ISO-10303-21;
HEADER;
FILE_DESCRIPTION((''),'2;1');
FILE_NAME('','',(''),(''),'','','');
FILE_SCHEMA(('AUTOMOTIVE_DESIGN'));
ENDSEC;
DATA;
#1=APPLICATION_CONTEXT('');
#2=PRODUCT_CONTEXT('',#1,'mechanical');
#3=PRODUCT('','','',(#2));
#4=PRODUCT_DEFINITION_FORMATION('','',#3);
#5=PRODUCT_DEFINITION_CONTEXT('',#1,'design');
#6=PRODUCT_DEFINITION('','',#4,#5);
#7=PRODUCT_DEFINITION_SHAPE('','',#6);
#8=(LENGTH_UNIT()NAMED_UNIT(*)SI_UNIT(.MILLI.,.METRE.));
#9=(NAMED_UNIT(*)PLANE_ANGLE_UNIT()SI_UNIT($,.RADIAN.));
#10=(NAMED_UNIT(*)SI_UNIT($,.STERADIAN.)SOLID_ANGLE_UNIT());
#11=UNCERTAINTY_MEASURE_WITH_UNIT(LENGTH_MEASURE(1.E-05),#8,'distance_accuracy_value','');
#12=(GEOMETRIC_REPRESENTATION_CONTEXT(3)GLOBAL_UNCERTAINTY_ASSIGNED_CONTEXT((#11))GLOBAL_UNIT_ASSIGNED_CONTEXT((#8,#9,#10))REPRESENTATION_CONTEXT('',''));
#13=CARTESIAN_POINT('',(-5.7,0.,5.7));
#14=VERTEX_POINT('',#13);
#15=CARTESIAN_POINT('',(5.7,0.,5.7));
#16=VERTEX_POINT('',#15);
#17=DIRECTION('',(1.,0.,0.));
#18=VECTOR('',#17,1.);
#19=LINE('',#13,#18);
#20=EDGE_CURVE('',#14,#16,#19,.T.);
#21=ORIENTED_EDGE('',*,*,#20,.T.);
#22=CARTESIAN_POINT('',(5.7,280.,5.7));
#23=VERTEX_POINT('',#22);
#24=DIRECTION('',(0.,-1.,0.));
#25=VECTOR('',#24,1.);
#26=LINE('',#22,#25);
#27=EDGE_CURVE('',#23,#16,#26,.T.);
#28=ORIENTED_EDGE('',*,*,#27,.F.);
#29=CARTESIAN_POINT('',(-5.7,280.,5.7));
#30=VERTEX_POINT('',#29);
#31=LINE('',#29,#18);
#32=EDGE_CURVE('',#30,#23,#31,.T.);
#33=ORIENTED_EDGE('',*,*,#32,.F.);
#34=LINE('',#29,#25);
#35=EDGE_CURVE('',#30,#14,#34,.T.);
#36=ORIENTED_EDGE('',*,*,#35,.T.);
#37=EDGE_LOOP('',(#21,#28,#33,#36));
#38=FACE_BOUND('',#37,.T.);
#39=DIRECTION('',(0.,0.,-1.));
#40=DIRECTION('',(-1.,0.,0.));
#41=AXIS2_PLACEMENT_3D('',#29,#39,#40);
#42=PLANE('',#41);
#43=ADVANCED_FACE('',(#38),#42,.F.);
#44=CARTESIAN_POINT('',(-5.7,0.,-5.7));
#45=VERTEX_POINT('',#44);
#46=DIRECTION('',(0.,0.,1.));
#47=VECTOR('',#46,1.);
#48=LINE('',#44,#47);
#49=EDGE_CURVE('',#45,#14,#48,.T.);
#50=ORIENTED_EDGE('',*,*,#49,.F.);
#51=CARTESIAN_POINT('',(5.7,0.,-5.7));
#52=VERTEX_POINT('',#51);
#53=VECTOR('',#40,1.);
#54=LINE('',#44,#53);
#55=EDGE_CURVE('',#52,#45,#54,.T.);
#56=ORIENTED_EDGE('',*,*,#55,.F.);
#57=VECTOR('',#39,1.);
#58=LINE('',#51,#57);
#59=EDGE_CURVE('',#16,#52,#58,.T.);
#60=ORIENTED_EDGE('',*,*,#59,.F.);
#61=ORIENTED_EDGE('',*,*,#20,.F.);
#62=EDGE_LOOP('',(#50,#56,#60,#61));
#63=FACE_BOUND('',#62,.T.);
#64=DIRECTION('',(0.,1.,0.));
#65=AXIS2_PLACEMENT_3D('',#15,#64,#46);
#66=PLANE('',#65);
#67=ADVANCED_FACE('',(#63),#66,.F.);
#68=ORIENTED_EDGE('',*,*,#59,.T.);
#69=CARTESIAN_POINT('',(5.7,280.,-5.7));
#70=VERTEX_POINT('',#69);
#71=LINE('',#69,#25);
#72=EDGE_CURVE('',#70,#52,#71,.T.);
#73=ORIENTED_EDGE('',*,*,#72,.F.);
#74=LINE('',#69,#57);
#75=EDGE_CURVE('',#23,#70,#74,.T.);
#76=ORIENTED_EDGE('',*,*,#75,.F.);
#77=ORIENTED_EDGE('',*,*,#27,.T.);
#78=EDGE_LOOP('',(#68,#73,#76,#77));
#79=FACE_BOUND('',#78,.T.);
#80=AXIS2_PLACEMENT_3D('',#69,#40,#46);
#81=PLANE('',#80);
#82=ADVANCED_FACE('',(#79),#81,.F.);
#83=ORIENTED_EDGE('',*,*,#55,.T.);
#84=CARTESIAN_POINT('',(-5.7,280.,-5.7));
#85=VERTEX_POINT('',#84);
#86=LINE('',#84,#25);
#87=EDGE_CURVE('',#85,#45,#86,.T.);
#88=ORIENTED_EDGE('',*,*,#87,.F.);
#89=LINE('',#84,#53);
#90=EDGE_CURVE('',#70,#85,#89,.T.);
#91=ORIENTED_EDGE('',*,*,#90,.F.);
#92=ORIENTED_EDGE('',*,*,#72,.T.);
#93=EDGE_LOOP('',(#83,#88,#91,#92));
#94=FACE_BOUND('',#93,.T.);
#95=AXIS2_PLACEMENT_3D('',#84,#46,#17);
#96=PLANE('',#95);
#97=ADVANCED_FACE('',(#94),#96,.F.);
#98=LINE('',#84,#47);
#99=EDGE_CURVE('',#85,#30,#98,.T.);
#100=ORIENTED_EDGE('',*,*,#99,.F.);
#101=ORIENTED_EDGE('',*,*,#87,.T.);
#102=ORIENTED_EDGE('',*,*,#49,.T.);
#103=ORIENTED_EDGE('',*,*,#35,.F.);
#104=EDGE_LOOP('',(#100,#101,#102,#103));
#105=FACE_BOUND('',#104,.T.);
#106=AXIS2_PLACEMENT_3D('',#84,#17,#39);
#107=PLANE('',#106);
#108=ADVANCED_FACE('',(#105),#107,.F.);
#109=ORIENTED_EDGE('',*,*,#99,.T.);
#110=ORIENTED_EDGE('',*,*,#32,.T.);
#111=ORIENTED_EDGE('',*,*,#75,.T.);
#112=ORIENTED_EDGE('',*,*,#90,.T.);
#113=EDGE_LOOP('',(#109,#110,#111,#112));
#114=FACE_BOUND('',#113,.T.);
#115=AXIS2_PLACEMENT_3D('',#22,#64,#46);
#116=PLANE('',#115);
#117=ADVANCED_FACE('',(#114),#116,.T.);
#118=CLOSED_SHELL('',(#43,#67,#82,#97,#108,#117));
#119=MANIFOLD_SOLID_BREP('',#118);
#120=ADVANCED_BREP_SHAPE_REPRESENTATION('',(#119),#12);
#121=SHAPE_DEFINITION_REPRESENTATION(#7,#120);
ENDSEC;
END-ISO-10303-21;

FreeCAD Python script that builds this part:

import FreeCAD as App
import Part
import Sketcher

V = App.Vector
Q = App.Units.Quantity


def add_polygon(sketch, points):
    """Adds a closed chain of lines whose ends are joined by coincident constraints."""
    first, n = sketch.GeometryCount, len(points)
    for a, b in zip(points, points[1:] + points[:1]):
        sketch.addGeometry(Part.LineSegment(App.Vector(*a, 0), App.Vector(*b, 0)), False)
    for i in range(n):
        sketch.addConstraint(Sketcher.Constraint("Coincident", first + i, 2, first + (i + 1) % n, 1))

doc = App.newDocument("Part")
body = doc.addObject("PartDesign::Body", "Body")

# Sketch on XZ plane
sketch1 = body.newObject("Sketcher::SketchObject", "Sketch")
sketch1.AttachmentSupport = (doc.getObject("XZ_Plane"), [""])
sketch1.MapMode = "FlatFace"
add_polygon(sketch1, [(-6, -6), (-6, 6), (6, 6), (6, -6)])  # lines 0-3
sketch1.addConstraint(Sketcher.Constraint("Vertical", 0))
sketch1.addConstraint(Sketcher.Constraint("Horizontal", 1))
sketch1.addConstraint(Sketcher.Constraint("Vertical", 2))
sketch1.addConstraint(Sketcher.Constraint("Horizontal", 3))
sketch1.addConstraint(Sketcher.Constraint("Symmetric", 0, 2, 2, 2, -1, 1))
sketch1.addConstraint(Sketcher.Constraint("Equal", 3, 0))
sketch1.addConstraint(Sketcher.Constraint("DistanceX", 1, 1, 1, 2, Q("11.4 mm")))
pad1 = body.newObject("PartDesign::Pad", "Pad")
pad1.Profile = sketch1
pad1.Length = 280
pad1.Reversed = True

doc.recompute()
